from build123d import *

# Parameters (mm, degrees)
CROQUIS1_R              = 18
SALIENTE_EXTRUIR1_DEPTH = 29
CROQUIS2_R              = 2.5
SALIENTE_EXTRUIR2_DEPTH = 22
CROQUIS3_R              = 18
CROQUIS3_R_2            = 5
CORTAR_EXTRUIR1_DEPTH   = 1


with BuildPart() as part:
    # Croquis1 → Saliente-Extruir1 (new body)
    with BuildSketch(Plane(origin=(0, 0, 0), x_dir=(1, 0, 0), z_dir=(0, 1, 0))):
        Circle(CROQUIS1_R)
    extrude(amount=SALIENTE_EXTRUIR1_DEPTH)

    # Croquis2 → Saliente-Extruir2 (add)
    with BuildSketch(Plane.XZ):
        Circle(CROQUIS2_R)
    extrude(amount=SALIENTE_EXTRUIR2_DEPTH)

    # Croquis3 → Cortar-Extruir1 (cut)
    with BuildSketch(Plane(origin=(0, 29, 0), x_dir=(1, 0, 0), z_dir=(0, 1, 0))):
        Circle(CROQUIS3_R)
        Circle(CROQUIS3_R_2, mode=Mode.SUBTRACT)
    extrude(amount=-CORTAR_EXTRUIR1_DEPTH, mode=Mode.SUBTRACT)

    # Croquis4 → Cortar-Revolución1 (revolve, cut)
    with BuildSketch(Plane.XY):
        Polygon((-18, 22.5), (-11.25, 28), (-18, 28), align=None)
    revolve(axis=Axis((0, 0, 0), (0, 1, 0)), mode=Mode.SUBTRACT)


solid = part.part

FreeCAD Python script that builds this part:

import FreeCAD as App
import Part
import Sketcher
from FreeCAD import Vector
Q = App.Units.Quantity


def add_polygon(sketch, points):
    """Adds a closed chain of lines whose ends are joined by coincident constraints."""
    first, n = sketch.GeometryCount, len(points)
    for a, b in zip(points, points[1:] + points[:1]):
        sketch.addGeometry(Part.LineSegment(App.Vector(*a, 0), App.Vector(*b, 0)), False)
    for i in range(n):
        sketch.addConstraint(Sketcher.Constraint("Coincident", first + i, 2, first + (i + 1) % n, 1))

doc = App.newDocument("Part")
body = doc.addObject("PartDesign::Body", "Body")

# Sketch on XZ plane
sketch1 = body.newObject("Sketcher::SketchObject", "Sketch")
sketch1.AttachmentSupport = (doc.getObject("XZ_Plane"), [""])
sketch1.MapMode = "FlatFace"
sketch1.addGeometry(Part.Circle(Vector(0, 0, 0), Vector(0, 0, 1), 18), False)
sketch1.addConstraint(Sketcher.Constraint("Coincident", 0, 3, -1, 1))
sketch1.addConstraint(Sketcher.Constraint("Diameter", 0, Q("36 mm")))
pad1 = body.newObject("PartDesign::Pad", "Pad")
pad1.Profile = sketch1
pad1.Length = 29
pad1.Reversed = True

# Sketch on XZ plane
sketch2 = body.newObject("Sketcher::SketchObject", "Sketch001")
sketch2.AttachmentSupport = (doc.getObject("XZ_Plane"), [""])
sketch2.MapMode = "FlatFace"
sketch2.addGeometry(Part.Circle(Vector(0, 0, 0), Vector(0, 0, 1), 2.5), False)
sketch2.addConstraint(Sketcher.Constraint("Coincident", 0, 3, -1, 1))
sketch2.addConstraint(Sketcher.Constraint("Diameter", 0, Q("5 mm")))
pad2 = body.newObject("PartDesign::Pad", "Pad001")
pad2.Profile = sketch2
pad2.Length = 22

# Sketch on XZ plane
sketch3 = body.newObject("Sketcher::SketchObject", "Sketch002")
sketch3.AttachmentSupport = (doc.getObject("XZ_Plane"), [""])
sketch3.MapMode = "FlatFace"
sketch3.AttachmentOffset = App.Placement(Vector(0, 0, -29), App.Rotation())
sketch3.addGeometry(Part.Circle(Vector(0, 0, 0), Vector(0, 0, 1), 18), False)
sketch3.addGeometry(Part.Circle(Vector(0, 0, 0), Vector(0, 0, 1), 5), False)
sketch3.addConstraint(Sketcher.Constraint("Coincident", 0, 3, -1, 1))
sketch3.addConstraint(Sketcher.Constraint("Coincident", 1, 3, -1, 1))
sketch3.addConstraint(Sketcher.Constraint("Diameter", 0, Q("36 mm")))
sketch3.addConstraint(Sketcher.Constraint("Diameter", 1, Q("10 mm")))
pocket1 = body.newObject("PartDesign::Pocket", "Pocket")
pocket1.Profile = sketch3
pocket1.Length = 1
pocket1.Reversed = True

# Sketch on XY plane
sketch4 = body.newObject("Sketcher::SketchObject", "Sketch003")
sketch4.AttachmentSupport = (doc.getObject("XY_Plane"), [""])
sketch4.MapMode = "FlatFace"
add_polygon(sketch4, [(-18, 22.5), (-11.25, 28), (-18, 28)])  # lines 0-2
sketch4.addConstraint(Sketcher.Constraint("Horizontal", 1))
sketch4.addConstraint(Sketcher.Constraint("Vertical", 2))
sketch4.addConstraint(Sketcher.Constraint("DistanceY", 2, 2, 2, 1, Q("5.5 mm")))
sketch4.addConstraint(Sketcher.Constraint("DistanceY", -1, 1, 0, 2, Q("28 mm")))
sketch4.addConstraint(Sketcher.Constraint("DistanceX", 1, 2, -1, 1, Q("18 mm")))
sketch4.addConstraint(Sketcher.Constraint("DistanceX", 1, 2, 1, 1, Q("6.75 mm")))
groove = body.newObject("PartDesign::Groove", "Groove")
groove.Profile = sketch4
groove.ReferenceAxis = (sketch4, ["V_Axis"])
groove.Angle = 360

doc.recompute()
